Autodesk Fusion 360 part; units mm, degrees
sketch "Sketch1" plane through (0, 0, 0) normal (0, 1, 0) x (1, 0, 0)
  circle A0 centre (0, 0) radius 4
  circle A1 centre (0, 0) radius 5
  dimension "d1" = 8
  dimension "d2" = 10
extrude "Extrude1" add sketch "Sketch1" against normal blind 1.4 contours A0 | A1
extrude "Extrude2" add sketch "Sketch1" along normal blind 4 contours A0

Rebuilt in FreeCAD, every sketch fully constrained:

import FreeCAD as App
import Part
import Sketcher

doc = App.newDocument("Part")
params = doc.addObject("Spreadsheet::Sheet", "Params")
for row, (alias, value) in enumerate([
    ("sketch1_diameter", "10 mm"),
    ("pad1_length", "1.4 mm"),
    ("sketch2_diameter", "8 mm"),
    ("pad2_length", "4 mm"),
], start=1):
    params.set(f"A{row}", alias)
    params.set(f"B{row}", "=" + value)
    params.setAlias(f"B{row}", alias)

body = doc.addObject("PartDesign::Body", "Body")

# Sketch on XZ plane
sketch1 = body.newObject("Sketcher::SketchObject", "Sketch")
sketch1.AttachmentSupport = (doc.getObject("XZ_Plane"), [""])
sketch1.MapMode = "FlatFace"
sketch1.addGeometry(Part.Circle(App.Vector(0, 0, 0), App.Vector(0, 0, 1), 5), False)
sketch1.addConstraint([
    Sketcher.Constraint("Coincident", 0, 3, -1, 1),
    Sketcher.Constraint("Diameter", 0, 10.0),
])
sketch1.setExpression("Constraints[1]", "Params.sketch1_diameter")
pad1 = body.newObject("PartDesign::Pad", "Pad")
pad1.Profile = sketch1
pad1.setExpression("Length", "Params.pad1_length")

# Sketch on XZ plane
sketch2 = body.newObject("Sketcher::SketchObject", "Sketch001")
sketch2.AttachmentSupport = (doc.getObject("XZ_Plane"), [""])
sketch2.MapMode = "FlatFace"
sketch2.addGeometry(Part.Circle(App.Vector(0, 0, 0), App.Vector(0, 0, 1), 4), False)
sketch2.addConstraint([
    Sketcher.Constraint("Coincident", 0, 3, -1, 1),
    Sketcher.Constraint("Diameter", 0, 8.0),
])
sketch2.setExpression("Constraints[1]", "Params.sketch2_diameter")
pad2 = body.newObject("PartDesign::Pad", "Pad001")
pad2.Profile = sketch2
pad2.setExpression("Length", "Params.pad2_length")
pad2.Reversed = True

doc.recompute()
